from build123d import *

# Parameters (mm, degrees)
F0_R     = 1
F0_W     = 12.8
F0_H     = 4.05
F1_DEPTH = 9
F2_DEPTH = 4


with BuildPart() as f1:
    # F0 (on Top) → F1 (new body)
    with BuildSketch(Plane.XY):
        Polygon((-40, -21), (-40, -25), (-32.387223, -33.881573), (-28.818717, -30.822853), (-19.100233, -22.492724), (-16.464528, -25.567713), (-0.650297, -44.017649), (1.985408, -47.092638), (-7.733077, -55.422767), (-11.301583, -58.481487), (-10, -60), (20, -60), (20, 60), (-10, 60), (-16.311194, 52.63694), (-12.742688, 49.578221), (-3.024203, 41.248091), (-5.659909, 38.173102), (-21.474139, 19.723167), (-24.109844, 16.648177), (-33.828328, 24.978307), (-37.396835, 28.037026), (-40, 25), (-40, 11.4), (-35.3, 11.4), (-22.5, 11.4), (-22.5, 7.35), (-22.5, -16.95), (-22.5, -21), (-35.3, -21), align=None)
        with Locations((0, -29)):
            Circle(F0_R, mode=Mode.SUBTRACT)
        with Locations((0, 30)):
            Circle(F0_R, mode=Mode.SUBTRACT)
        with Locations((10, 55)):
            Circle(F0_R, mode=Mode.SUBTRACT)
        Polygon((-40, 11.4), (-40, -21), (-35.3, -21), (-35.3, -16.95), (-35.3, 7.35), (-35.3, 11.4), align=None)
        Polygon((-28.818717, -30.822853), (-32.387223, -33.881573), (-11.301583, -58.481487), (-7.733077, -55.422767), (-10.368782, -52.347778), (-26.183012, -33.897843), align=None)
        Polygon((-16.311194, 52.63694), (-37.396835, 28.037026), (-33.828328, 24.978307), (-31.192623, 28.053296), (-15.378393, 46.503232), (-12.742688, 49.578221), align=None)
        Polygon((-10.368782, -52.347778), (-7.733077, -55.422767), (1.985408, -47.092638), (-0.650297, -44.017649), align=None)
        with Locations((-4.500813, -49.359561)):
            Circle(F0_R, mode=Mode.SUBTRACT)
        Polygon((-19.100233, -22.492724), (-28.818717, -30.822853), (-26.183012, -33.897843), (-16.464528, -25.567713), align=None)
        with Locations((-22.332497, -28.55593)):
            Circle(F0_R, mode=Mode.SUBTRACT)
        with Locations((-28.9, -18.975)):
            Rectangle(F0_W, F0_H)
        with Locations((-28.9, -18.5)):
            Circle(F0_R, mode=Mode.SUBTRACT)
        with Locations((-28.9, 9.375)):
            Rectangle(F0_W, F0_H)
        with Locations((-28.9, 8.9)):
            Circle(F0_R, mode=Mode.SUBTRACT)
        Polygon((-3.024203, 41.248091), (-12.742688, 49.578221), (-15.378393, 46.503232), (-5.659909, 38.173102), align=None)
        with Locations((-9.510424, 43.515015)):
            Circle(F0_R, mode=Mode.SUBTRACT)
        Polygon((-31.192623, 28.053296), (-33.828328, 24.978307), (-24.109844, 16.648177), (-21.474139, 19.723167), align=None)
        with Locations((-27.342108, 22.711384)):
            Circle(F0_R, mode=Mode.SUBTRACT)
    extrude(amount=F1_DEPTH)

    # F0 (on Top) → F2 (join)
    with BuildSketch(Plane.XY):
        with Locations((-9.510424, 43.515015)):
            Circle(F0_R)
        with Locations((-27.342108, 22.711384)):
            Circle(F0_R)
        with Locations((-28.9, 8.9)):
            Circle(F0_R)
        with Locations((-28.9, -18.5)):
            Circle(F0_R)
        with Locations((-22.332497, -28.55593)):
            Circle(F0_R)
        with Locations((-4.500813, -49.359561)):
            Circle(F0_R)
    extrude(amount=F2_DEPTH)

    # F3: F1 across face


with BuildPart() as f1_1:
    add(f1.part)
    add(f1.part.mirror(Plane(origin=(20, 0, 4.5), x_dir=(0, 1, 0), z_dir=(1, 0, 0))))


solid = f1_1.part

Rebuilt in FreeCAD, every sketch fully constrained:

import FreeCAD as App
import Part
import Sketcher
Q = App.Units.Quantity

doc = App.newDocument("Part")
body = doc.addObject("PartDesign::Body", "Body")

# Sketch on XY plane
sketch1 = body.newObject("Sketcher::SketchObject", "Sketch")
sketch1.AttachmentSupport = (doc.getObject("XY_Plane"), [""])
sketch1.MapMode = "FlatFace"
sketch1.addGeometry(Part.LineSegment(App.Vector(-40, -25, 0), App.Vector(-32.4, -33.9, 0)), False)
sketch1.addGeometry(Part.LineSegment(App.Vector(-32.4, -33.9, 0), App.Vector(-11.3, -58.5, 0)), False)
sketch1.addGeometry(Part.LineSegment(App.Vector(-11.3, -58.5, 0), App.Vector(-10, -60, 0)), False)
sketch1.addGeometry(Part.LineSegment(App.Vector(-10, -60, 0), App.Vector(20, -60, 0)), False)
sketch1.addGeometry(Part.LineSegment(App.Vector(20, -60, 0), App.Vector(20, 60, 0)), False)
sketch1.addGeometry(Part.LineSegment(App.Vector(20, 60, 0), App.Vector(-10, 60, 0)), False)
sketch1.addGeometry(Part.LineSegment(App.Vector(-10, 60, 0), App.Vector(-16.3, 52.6, 0)), False)
sketch1.addGeometry(Part.LineSegment(App.Vector(-16.3, 52.6, 0), App.Vector(-37.4, 28, 0)), False)
sketch1.addGeometry(Part.LineSegment(App.Vector(-37.4, 28, 0), App.Vector(-40, 25, 0)), False)
sketch1.addGeometry(Part.LineSegment(App.Vector(-40, 25, 0), App.Vector(-40, -25, 0)), False)
sketch1.addGeometry(Part.LineSegment(App.Vector(-10.4, -52.3, 0), App.Vector(-26.2, -33.9, 0)), False)
sketch1.addGeometry(Part.LineSegment(App.Vector(-26.2, -33.9, 0), App.Vector(-16.5, -25.6, 0)), False)
sketch1.addGeometry(Part.LineSegment(App.Vector(-16.5, -25.6, 0), App.Vector(-0.7, -44, 0)), False)
sketch1.addGeometry(Part.LineSegment(App.Vector(-0.7, -44, 0), App.Vector(-10.4, -52.3, 0)), False)
sketch1.addGeometry(Part.Circle(App.Vector(-22.3, -28.6, 0), App.Vector(0, 0, 1), 1), False)
sketch1.addGeometry(Part.Circle(App.Vector(-28.9, -18.5, 0), App.Vector(0, 0, 1), 1), False)
sketch1.addGeometry(Part.LineSegment(App.Vector(-22.5, 7.3, 0), App.Vector(-22.5, -16.9, 0)), False)
sketch1.addGeometry(Part.LineSegment(App.Vector(-22.5, -16.9, 0), App.Vector(-35.3, -16.9, 0)), False)
sketch1.addGeometry(Part.LineSegment(App.Vector(-35.3, -16.9, 0), App.Vector(-35.3, 7.3, 0)), False)
sketch1.addGeometry(Part.LineSegment(App.Vector(-35.3, 7.3, 0), App.Vector(-22.5, 7.3, 0)), False)
sketch1.addGeometry(Part.Circle(App.Vector(-4.5, -49.4, 0), App.Vector(0, 0, 1), 1), False)
sketch1.addGeometry(Part.Circle(App.Vector(0, -29, 0), App.Vector(0, 0, 1), 1), False)
sketch1.addGeometry(Part.Circle(App.Vector(-28.9, 8.9, 0), App.Vector(0, 0, 1), 1), False)
sketch1.addGeometry(Part.Circle(App.Vector(-27.3, 22.7, 0), App.Vector(0, 0, 1), 1), False)
sketch1.addGeometry(Part.LineSegment(App.Vector(-31.2, 28.1, 0), App.Vector(-15.4, 46.5, 0)), False)
sketch1.addGeometry(Part.LineSegment(App.Vector(-15.4, 46.5, 0), App.Vector(-5.7, 38.2, 0)), False)
sketch1.addGeometry(Part.LineSegment(App.Vector(-5.7, 38.2, 0), App.Vector(-21.5, 19.7, 0)), False)
sketch1.addGeometry(Part.LineSegment(App.Vector(-21.5, 19.7, 0), App.Vector(-31.2, 28.1, 0)), False)
sketch1.addGeometry(Part.Circle(App.Vector(-9.5, 43.5, 0), App.Vector(0, 0, 1), 1), False)
sketch1.addGeometry(Part.Circle(App.Vector(0, 30, 0), App.Vector(0, 0, 1), 1), False)
sketch1.addGeometry(Part.Circle(App.Vector(10, 55, 0), App.Vector(0, 0, 1), 1), False)
sketch1.addConstraint(Sketcher.Constraint("Coincident", 0, 2, 1, 1))
sketch1.addConstraint(Sketcher.Constraint("Coincident", 1, 2, 2, 1))
sketch1.addConstraint(Sketcher.Constraint("Coincident", 2, 2, 3, 1))
sketch1.addConstraint(Sketcher.Constraint("Coincident", 3, 2, 4, 1))
sketch1.addConstraint(Sketcher.Constraint("Coincident", 4, 2, 5, 1))
sketch1.addConstraint(Sketcher.Constraint("Coincident", 5, 2, 6, 1))
sketch1.addConstraint(Sketcher.Constraint("Coincident", 6, 2, 7, 1))
sketch1.addConstraint(Sketcher.Constraint("Coincident", 7, 2, 8, 1))
sketch1.addConstraint(Sketcher.Constraint("Coincident", 8, 2, 9, 1))
sketch1.addConstraint(Sketcher.Constraint("Coincident", 9, 2, 0, 1))
sketch1.addConstraint(Sketcher.Constraint("Coincident", 10, 2, 11, 1))
sketch1.addConstraint(Sketcher.Constraint("Coincident", 11, 2, 12, 1))
sketch1.addConstraint(Sketcher.Constraint("Coincident", 12, 2, 13, 1))
sketch1.addConstraint(Sketcher.Constraint("Coincident", 13, 2, 10, 1))
sketch1.addConstraint(Sketcher.Constraint("Coincident", 16, 2, 17, 1))
sketch1.addConstraint(Sketcher.Constraint("Coincident", 17, 2, 18, 1))
sketch1.addConstraint(Sketcher.Constraint("Coincident", 18, 2, 19, 1))
sketch1.addConstraint(Sketcher.Constraint("Coincident", 19, 2, 16, 1))
sketch1.addConstraint(Sketcher.Constraint("Coincident", 24, 2, 25, 1))
sketch1.addConstraint(Sketcher.Constraint("Coincident", 25, 2, 26, 1))
sketch1.addConstraint(Sketcher.Constraint("Coincident", 26, 2, 27, 1))
sketch1.addConstraint(Sketcher.Constraint("Coincident", 27, 2, 24, 1))
sketch1.addConstraint(Sketcher.Constraint("Horizontal", 3))
sketch1.addConstraint(Sketcher.Constraint("Vertical", 4))
sketch1.addConstraint(Sketcher.Constraint("Horizontal", 5))
sketch1.addConstraint(Sketcher.Constraint("Vertical", 9))
sketch1.addConstraint(Sketcher.Constraint("Vertical", 16))
sketch1.addConstraint(Sketcher.Constraint("Horizontal", 17))
sketch1.addConstraint(Sketcher.Constraint("Vertical", 18))
sketch1.addConstraint(Sketcher.Constraint("Horizontal", 19))
sketch1.addConstraint(Sketcher.Constraint("Equal", 14, 15))
sketch1.addConstraint(Sketcher.Constraint("Equal", 15, 20))
sketch1.addConstraint(Sketcher.Constraint("Equal", 20, 21))
sketch1.addConstraint(Sketcher.Constraint("Equal", 21, 22))
sketch1.addConstraint(Sketcher.Constraint("Equal", 22, 23))
sketch1.addConstraint(Sketcher.Constraint("Equal", 23, 28))
sketch1.addConstraint(Sketcher.Constraint("Equal", 28, 29))
sketch1.addConstraint(Sketcher.Constraint("Equal", 29, 30))
sketch1.addConstraint(Sketcher.Constraint("Symmetric", 2, 2, 5, 2, -1))
sketch1.addConstraint(Sketcher.Constraint("PointOnObject", 21, 3, -2))
sketch1.addConstraint(Sketcher.Constraint("PointOnObject", 29, 3, -2))
sketch1.addConstraint(Sketcher.Constraint("Parallel", 0, 1))
sketch1.addConstraint(Sketcher.Constraint("Parallel", 1, 2))
sketch1.addConstraint(Sketcher.Constraint("Parallel", 6, 7))
sketch1.addConstraint(Sketcher.Constraint("Parallel", 7, 8))
sketch1.addConstraint(Sketcher.Constraint("Parallel", 2, 10))
sketch1.addConstraint(Sketcher.Constraint("Perpendicular", 10, 11))
sketch1.addConstraint(Sketcher.Constraint("Perpendicular", 11, 12))
sketch1.addConstraint(Sketcher.Constraint("Perpendicular", 12, 13))
sketch1.addConstraint(Sketcher.Constraint("Parallel", 8, 24))
sketch1.addConstraint(Sketcher.Constraint("Perpendicular", 24, 25))
sketch1.addConstraint(Sketcher.Constraint("Perpendicular", 25, 26))
sketch1.addConstraint(Sketcher.Constraint("Perpendicular", 26, 27))
sketch1.addConstraint(Sketcher.Constraint("Vertical", 15, 3, 22, 3))
sketch1.addConstraint(Sketcher.Constraint("Equal", 1, 7))
sketch1.addConstraint(Sketcher.Constraint("Equal", 12, 24))
sketch1.addConstraint(Sketcher.Constraint("Equal", 13, 25))
sketch1.addConstraint(Sketcher.Constraint("Diameter", 14, Q("2 mm")))
sketch1.addConstraint(Sketcher.Constraint("DistanceX", 3, 1, 3, 2, Q("30 mm")))
sketch1.addConstraint(Sketcher.Constraint("DistanceY", 4, 1, 4, 2, Q("120 mm")))
sketch1.addConstraint(Sketcher.Constraint("DistanceY", 9, 2, 9, 1, Q("50 mm")))
sketch1.addConstraint(Sketcher.Constraint("Distance", 2, Q("2 mm")))
sketch1.addConstraint(Sketcher.Constraint("Distance", 8, Q("3.999999 mm")))
sketch1.addConstraint(Sketcher.Constraint("DistanceX", 17, 2, 17, 1, Q("12.8 mm")))
sketch1.addConstraint(Sketcher.Constraint("DistanceY", 16, 2, 16, 1, Q("24.3 mm")))
sketch1.addConstraint(Sketcher.Constraint("DistanceY", 21, 3, -1, 1, Q("29 mm")))
sketch1.addConstraint(Sketcher.Constraint("DistanceY", -1, 1, 29, 3, Q("30 mm")))
sketch1.addConstraint(Sketcher.Constraint("DistanceX", -1, 1, 30, 3, Q("10 mm")))
sketch1.addConstraint(Sketcher.Constraint("DistanceY", -1, 1, 30, 3, Q("55 mm")))
sketch1.addConstraint(Sketcher.Constraint("DistanceX", 2, 2, -1, 1, Q("10 mm")))
sketch1.addConstraint(Sketcher.Constraint("DistanceX", 8, 2, -1, 1, Q("40 mm")))
sketch1.addConstraint(Sketcher.Constraint("DistanceY", -1, 1, 8, 2, Q("25 mm")))
sketch1.addConstraint(Sketcher.Constraint("Distance", 1, Q("32.4 mm")))
sketch1.addConstraint(Sketcher.Constraint("Distance", 10, Q("24.299999 mm")))
sketch1.addConstraint(Sketcher.Constraint("Distance", 11, Q("12.8 mm")))
sketch1.addConstraint(Sketcher.Constraint("DistanceX", 15, 3, -1, 1, Q("28.9 mm")))
sketch1.addConstraint(Sketcher.Constraint("DistanceY", 15, 3, -1, 1, Q("18.5 mm")))
sketch1.addConstraint(Sketcher.Constraint("DistanceY", -1, 1, 22, 3, Q("8.9 mm")))
sketch1.addConstraint(Sketcher.Constraint("DistanceX", 16, 2, -1, 1, Q("22.5 mm")))
sketch1.addConstraint(Sketcher.Constraint("DistanceY", 16, 2, -1, 1, Q("16.95 mm")))
sketch1.addConstraint(Sketcher.Constraint("DistanceX", 10, 2, 20, 3, Q("21.682199 mm")))
sketch1.addConstraint(Sketcher.Constraint("DistanceX", 1, 2, 13, 2, Q("0.932801 mm")))
sketch1.addConstraint(Sketcher.Constraint("DistanceX", 6, 2, 24, 2, Q("0.932801 mm")))
sketch1.addConstraint(Sketcher.Constraint("DistanceY", 25, 2, 5, 2, Q("21.826898 mm")))
sketch1.addConstraint(Sketcher.Constraint("DistanceY", 14, 3, -1, 1, Q("28.55593 mm")))
sketch1.addConstraint(Sketcher.Constraint("DistanceY", 20, 3, -1, 1, Q("49.359561 mm")))
sketch1.addConstraint(Sketcher.Constraint("DistanceY", 12, 2, -1, 1, Q("44.017649 mm")))
sketch1.addConstraint(Sketcher.Constraint("DistanceX", 22, 3, 23, 3, Q("1.557892 mm")))
sketch1.addConstraint(Sketcher.Constraint("DistanceX", 23, 3, 14, 3, Q("5.009611 mm")))
sketch1.addConstraint(Sketcher.Constraint("DistanceY", 23, 3, 28, 3, Q("20.803631 mm")))
sketch1.addConstraint(Sketcher.Constraint("DistanceX", 6, 2, 28, 3, Q("6.80077 mm")))
sketch1.addConstraint(Sketcher.Constraint("DistanceY", 7, 2, 28, 3, Q("15.477989 mm")))
pad1 = body.newObject("PartDesign::Pad", "Pad")
pad1.Profile = sketch1
pad1.Length = 9

# Sketch on XY plane
sketch2 = body.newObject("Sketcher::SketchObject", "Sketch001")
sketch2.AttachmentSupport = (doc.getObject("XY_Plane"), [""])
sketch2.MapMode = "FlatFace"
sketch2.addGeometry(Part.Circle(App.Vector(-9.5, 43.5, 0), App.Vector(0, 0, 1), 1), False)
sketch2.addGeometry(Part.Circle(App.Vector(-27.3, 22.7, 0), App.Vector(0, 0, 1), 1), False)
sketch2.addGeometry(Part.Circle(App.Vector(-28.9, 8.9, 0), App.Vector(0, 0, 1), 1), False)
sketch2.addGeometry(Part.Circle(App.Vector(-28.9, -18.5, 0), App.Vector(0, 0, 1), 1), False)
sketch2.addGeometry(Part.Circle(App.Vector(-22.3, -28.6, 0), App.Vector(0, 0, 1), 1), False)
sketch2.addGeometry(Part.Circle(App.Vector(-4.5, -49.4, 0), App.Vector(0, 0, 1), 1), False)
sketch2.addConstraint(Sketcher.Constraint("Equal", 0, 1))
sketch2.addConstraint(Sketcher.Constraint("Equal", 1, 2))
sketch2.addConstraint(Sketcher.Constraint("Equal", 2, 3))
sketch2.addConstraint(Sketcher.Constraint("Equal", 3, 4))
sketch2.addConstraint(Sketcher.Constraint("Equal", 4, 5))
sketch2.addConstraint(Sketcher.Constraint("Vertical", 2, 3, 3, 3))
sketch2.addConstraint(Sketcher.Constraint("Diameter", 0, Q("2 mm")))
sketch2.addConstraint(Sketcher.Constraint("DistanceX", 2, 3, -1, 1, Q("28.9 mm")))
sketch2.addConstraint(Sketcher.Constraint("DistanceY", -1, 1, 2, 3, Q("8.9 mm")))
sketch2.addConstraint(Sketcher.Constraint("DistanceY", 3, 3, -1, 1, Q("18.5 mm")))
sketch2.addConstraint(Sketcher.Constraint("DistanceY", 4, 3, -1, 1, Q("28.55593 mm")))
sketch2.addConstraint(Sketcher.Constraint("DistanceY", 5, 3, -1, 1, Q("49.359561 mm")))
sketch2.addConstraint(Sketcher.Constraint("DistanceY", 1, 3, 0, 3, Q("20.803631 mm")))
sketch2.addConstraint(Sketcher.Constraint("DistanceX", 2, 3, 1, 3, Q("1.557892 mm")))
sketch2.addConstraint(Sketcher.Constraint("DistanceX", 1, 3, 4, 3, Q("5.009611 mm")))
sketch2.addConstraint(Sketcher.Constraint("DistanceX", 0, 3, 5, 3, Q("5.009611 mm")))
sketch2.addConstraint(Sketcher.Constraint("DistanceX", 0, 3, -1, 1, Q("9.510424 mm")))
sketch2.addConstraint(Sketcher.Constraint("DistanceY", -1, 1, 0, 3, Q("43.515015 mm")))
pad2 = body.newObject("PartDesign::Pad", "Pad001")
pad2.Profile = sketch2
pad2.Length = 4
body2 = doc.addObject("PartDesign::Body", "Body001")
doc.recompute()

body2.BaseFeature = body
doc.recompute()

mirroring = doc.addObject("Part::Mirroring", "Mirroring")
mirroring.Source = body
mirroring.Base = App.Vector(20, 0, 4.5)
mirroring.Normal = App.Vector(1, 0, 0)
body3 = doc.addObject("PartDesign::Body", "Body002")
body3.BaseFeature = mirroring
boolean = body2.newObject("PartDesign::Boolean", "Boolean")
boolean.Type = "Fuse"
boolean.addObjects([body3])
doc.recompute()
mirroring.Visibility = False

doc.recompute()
